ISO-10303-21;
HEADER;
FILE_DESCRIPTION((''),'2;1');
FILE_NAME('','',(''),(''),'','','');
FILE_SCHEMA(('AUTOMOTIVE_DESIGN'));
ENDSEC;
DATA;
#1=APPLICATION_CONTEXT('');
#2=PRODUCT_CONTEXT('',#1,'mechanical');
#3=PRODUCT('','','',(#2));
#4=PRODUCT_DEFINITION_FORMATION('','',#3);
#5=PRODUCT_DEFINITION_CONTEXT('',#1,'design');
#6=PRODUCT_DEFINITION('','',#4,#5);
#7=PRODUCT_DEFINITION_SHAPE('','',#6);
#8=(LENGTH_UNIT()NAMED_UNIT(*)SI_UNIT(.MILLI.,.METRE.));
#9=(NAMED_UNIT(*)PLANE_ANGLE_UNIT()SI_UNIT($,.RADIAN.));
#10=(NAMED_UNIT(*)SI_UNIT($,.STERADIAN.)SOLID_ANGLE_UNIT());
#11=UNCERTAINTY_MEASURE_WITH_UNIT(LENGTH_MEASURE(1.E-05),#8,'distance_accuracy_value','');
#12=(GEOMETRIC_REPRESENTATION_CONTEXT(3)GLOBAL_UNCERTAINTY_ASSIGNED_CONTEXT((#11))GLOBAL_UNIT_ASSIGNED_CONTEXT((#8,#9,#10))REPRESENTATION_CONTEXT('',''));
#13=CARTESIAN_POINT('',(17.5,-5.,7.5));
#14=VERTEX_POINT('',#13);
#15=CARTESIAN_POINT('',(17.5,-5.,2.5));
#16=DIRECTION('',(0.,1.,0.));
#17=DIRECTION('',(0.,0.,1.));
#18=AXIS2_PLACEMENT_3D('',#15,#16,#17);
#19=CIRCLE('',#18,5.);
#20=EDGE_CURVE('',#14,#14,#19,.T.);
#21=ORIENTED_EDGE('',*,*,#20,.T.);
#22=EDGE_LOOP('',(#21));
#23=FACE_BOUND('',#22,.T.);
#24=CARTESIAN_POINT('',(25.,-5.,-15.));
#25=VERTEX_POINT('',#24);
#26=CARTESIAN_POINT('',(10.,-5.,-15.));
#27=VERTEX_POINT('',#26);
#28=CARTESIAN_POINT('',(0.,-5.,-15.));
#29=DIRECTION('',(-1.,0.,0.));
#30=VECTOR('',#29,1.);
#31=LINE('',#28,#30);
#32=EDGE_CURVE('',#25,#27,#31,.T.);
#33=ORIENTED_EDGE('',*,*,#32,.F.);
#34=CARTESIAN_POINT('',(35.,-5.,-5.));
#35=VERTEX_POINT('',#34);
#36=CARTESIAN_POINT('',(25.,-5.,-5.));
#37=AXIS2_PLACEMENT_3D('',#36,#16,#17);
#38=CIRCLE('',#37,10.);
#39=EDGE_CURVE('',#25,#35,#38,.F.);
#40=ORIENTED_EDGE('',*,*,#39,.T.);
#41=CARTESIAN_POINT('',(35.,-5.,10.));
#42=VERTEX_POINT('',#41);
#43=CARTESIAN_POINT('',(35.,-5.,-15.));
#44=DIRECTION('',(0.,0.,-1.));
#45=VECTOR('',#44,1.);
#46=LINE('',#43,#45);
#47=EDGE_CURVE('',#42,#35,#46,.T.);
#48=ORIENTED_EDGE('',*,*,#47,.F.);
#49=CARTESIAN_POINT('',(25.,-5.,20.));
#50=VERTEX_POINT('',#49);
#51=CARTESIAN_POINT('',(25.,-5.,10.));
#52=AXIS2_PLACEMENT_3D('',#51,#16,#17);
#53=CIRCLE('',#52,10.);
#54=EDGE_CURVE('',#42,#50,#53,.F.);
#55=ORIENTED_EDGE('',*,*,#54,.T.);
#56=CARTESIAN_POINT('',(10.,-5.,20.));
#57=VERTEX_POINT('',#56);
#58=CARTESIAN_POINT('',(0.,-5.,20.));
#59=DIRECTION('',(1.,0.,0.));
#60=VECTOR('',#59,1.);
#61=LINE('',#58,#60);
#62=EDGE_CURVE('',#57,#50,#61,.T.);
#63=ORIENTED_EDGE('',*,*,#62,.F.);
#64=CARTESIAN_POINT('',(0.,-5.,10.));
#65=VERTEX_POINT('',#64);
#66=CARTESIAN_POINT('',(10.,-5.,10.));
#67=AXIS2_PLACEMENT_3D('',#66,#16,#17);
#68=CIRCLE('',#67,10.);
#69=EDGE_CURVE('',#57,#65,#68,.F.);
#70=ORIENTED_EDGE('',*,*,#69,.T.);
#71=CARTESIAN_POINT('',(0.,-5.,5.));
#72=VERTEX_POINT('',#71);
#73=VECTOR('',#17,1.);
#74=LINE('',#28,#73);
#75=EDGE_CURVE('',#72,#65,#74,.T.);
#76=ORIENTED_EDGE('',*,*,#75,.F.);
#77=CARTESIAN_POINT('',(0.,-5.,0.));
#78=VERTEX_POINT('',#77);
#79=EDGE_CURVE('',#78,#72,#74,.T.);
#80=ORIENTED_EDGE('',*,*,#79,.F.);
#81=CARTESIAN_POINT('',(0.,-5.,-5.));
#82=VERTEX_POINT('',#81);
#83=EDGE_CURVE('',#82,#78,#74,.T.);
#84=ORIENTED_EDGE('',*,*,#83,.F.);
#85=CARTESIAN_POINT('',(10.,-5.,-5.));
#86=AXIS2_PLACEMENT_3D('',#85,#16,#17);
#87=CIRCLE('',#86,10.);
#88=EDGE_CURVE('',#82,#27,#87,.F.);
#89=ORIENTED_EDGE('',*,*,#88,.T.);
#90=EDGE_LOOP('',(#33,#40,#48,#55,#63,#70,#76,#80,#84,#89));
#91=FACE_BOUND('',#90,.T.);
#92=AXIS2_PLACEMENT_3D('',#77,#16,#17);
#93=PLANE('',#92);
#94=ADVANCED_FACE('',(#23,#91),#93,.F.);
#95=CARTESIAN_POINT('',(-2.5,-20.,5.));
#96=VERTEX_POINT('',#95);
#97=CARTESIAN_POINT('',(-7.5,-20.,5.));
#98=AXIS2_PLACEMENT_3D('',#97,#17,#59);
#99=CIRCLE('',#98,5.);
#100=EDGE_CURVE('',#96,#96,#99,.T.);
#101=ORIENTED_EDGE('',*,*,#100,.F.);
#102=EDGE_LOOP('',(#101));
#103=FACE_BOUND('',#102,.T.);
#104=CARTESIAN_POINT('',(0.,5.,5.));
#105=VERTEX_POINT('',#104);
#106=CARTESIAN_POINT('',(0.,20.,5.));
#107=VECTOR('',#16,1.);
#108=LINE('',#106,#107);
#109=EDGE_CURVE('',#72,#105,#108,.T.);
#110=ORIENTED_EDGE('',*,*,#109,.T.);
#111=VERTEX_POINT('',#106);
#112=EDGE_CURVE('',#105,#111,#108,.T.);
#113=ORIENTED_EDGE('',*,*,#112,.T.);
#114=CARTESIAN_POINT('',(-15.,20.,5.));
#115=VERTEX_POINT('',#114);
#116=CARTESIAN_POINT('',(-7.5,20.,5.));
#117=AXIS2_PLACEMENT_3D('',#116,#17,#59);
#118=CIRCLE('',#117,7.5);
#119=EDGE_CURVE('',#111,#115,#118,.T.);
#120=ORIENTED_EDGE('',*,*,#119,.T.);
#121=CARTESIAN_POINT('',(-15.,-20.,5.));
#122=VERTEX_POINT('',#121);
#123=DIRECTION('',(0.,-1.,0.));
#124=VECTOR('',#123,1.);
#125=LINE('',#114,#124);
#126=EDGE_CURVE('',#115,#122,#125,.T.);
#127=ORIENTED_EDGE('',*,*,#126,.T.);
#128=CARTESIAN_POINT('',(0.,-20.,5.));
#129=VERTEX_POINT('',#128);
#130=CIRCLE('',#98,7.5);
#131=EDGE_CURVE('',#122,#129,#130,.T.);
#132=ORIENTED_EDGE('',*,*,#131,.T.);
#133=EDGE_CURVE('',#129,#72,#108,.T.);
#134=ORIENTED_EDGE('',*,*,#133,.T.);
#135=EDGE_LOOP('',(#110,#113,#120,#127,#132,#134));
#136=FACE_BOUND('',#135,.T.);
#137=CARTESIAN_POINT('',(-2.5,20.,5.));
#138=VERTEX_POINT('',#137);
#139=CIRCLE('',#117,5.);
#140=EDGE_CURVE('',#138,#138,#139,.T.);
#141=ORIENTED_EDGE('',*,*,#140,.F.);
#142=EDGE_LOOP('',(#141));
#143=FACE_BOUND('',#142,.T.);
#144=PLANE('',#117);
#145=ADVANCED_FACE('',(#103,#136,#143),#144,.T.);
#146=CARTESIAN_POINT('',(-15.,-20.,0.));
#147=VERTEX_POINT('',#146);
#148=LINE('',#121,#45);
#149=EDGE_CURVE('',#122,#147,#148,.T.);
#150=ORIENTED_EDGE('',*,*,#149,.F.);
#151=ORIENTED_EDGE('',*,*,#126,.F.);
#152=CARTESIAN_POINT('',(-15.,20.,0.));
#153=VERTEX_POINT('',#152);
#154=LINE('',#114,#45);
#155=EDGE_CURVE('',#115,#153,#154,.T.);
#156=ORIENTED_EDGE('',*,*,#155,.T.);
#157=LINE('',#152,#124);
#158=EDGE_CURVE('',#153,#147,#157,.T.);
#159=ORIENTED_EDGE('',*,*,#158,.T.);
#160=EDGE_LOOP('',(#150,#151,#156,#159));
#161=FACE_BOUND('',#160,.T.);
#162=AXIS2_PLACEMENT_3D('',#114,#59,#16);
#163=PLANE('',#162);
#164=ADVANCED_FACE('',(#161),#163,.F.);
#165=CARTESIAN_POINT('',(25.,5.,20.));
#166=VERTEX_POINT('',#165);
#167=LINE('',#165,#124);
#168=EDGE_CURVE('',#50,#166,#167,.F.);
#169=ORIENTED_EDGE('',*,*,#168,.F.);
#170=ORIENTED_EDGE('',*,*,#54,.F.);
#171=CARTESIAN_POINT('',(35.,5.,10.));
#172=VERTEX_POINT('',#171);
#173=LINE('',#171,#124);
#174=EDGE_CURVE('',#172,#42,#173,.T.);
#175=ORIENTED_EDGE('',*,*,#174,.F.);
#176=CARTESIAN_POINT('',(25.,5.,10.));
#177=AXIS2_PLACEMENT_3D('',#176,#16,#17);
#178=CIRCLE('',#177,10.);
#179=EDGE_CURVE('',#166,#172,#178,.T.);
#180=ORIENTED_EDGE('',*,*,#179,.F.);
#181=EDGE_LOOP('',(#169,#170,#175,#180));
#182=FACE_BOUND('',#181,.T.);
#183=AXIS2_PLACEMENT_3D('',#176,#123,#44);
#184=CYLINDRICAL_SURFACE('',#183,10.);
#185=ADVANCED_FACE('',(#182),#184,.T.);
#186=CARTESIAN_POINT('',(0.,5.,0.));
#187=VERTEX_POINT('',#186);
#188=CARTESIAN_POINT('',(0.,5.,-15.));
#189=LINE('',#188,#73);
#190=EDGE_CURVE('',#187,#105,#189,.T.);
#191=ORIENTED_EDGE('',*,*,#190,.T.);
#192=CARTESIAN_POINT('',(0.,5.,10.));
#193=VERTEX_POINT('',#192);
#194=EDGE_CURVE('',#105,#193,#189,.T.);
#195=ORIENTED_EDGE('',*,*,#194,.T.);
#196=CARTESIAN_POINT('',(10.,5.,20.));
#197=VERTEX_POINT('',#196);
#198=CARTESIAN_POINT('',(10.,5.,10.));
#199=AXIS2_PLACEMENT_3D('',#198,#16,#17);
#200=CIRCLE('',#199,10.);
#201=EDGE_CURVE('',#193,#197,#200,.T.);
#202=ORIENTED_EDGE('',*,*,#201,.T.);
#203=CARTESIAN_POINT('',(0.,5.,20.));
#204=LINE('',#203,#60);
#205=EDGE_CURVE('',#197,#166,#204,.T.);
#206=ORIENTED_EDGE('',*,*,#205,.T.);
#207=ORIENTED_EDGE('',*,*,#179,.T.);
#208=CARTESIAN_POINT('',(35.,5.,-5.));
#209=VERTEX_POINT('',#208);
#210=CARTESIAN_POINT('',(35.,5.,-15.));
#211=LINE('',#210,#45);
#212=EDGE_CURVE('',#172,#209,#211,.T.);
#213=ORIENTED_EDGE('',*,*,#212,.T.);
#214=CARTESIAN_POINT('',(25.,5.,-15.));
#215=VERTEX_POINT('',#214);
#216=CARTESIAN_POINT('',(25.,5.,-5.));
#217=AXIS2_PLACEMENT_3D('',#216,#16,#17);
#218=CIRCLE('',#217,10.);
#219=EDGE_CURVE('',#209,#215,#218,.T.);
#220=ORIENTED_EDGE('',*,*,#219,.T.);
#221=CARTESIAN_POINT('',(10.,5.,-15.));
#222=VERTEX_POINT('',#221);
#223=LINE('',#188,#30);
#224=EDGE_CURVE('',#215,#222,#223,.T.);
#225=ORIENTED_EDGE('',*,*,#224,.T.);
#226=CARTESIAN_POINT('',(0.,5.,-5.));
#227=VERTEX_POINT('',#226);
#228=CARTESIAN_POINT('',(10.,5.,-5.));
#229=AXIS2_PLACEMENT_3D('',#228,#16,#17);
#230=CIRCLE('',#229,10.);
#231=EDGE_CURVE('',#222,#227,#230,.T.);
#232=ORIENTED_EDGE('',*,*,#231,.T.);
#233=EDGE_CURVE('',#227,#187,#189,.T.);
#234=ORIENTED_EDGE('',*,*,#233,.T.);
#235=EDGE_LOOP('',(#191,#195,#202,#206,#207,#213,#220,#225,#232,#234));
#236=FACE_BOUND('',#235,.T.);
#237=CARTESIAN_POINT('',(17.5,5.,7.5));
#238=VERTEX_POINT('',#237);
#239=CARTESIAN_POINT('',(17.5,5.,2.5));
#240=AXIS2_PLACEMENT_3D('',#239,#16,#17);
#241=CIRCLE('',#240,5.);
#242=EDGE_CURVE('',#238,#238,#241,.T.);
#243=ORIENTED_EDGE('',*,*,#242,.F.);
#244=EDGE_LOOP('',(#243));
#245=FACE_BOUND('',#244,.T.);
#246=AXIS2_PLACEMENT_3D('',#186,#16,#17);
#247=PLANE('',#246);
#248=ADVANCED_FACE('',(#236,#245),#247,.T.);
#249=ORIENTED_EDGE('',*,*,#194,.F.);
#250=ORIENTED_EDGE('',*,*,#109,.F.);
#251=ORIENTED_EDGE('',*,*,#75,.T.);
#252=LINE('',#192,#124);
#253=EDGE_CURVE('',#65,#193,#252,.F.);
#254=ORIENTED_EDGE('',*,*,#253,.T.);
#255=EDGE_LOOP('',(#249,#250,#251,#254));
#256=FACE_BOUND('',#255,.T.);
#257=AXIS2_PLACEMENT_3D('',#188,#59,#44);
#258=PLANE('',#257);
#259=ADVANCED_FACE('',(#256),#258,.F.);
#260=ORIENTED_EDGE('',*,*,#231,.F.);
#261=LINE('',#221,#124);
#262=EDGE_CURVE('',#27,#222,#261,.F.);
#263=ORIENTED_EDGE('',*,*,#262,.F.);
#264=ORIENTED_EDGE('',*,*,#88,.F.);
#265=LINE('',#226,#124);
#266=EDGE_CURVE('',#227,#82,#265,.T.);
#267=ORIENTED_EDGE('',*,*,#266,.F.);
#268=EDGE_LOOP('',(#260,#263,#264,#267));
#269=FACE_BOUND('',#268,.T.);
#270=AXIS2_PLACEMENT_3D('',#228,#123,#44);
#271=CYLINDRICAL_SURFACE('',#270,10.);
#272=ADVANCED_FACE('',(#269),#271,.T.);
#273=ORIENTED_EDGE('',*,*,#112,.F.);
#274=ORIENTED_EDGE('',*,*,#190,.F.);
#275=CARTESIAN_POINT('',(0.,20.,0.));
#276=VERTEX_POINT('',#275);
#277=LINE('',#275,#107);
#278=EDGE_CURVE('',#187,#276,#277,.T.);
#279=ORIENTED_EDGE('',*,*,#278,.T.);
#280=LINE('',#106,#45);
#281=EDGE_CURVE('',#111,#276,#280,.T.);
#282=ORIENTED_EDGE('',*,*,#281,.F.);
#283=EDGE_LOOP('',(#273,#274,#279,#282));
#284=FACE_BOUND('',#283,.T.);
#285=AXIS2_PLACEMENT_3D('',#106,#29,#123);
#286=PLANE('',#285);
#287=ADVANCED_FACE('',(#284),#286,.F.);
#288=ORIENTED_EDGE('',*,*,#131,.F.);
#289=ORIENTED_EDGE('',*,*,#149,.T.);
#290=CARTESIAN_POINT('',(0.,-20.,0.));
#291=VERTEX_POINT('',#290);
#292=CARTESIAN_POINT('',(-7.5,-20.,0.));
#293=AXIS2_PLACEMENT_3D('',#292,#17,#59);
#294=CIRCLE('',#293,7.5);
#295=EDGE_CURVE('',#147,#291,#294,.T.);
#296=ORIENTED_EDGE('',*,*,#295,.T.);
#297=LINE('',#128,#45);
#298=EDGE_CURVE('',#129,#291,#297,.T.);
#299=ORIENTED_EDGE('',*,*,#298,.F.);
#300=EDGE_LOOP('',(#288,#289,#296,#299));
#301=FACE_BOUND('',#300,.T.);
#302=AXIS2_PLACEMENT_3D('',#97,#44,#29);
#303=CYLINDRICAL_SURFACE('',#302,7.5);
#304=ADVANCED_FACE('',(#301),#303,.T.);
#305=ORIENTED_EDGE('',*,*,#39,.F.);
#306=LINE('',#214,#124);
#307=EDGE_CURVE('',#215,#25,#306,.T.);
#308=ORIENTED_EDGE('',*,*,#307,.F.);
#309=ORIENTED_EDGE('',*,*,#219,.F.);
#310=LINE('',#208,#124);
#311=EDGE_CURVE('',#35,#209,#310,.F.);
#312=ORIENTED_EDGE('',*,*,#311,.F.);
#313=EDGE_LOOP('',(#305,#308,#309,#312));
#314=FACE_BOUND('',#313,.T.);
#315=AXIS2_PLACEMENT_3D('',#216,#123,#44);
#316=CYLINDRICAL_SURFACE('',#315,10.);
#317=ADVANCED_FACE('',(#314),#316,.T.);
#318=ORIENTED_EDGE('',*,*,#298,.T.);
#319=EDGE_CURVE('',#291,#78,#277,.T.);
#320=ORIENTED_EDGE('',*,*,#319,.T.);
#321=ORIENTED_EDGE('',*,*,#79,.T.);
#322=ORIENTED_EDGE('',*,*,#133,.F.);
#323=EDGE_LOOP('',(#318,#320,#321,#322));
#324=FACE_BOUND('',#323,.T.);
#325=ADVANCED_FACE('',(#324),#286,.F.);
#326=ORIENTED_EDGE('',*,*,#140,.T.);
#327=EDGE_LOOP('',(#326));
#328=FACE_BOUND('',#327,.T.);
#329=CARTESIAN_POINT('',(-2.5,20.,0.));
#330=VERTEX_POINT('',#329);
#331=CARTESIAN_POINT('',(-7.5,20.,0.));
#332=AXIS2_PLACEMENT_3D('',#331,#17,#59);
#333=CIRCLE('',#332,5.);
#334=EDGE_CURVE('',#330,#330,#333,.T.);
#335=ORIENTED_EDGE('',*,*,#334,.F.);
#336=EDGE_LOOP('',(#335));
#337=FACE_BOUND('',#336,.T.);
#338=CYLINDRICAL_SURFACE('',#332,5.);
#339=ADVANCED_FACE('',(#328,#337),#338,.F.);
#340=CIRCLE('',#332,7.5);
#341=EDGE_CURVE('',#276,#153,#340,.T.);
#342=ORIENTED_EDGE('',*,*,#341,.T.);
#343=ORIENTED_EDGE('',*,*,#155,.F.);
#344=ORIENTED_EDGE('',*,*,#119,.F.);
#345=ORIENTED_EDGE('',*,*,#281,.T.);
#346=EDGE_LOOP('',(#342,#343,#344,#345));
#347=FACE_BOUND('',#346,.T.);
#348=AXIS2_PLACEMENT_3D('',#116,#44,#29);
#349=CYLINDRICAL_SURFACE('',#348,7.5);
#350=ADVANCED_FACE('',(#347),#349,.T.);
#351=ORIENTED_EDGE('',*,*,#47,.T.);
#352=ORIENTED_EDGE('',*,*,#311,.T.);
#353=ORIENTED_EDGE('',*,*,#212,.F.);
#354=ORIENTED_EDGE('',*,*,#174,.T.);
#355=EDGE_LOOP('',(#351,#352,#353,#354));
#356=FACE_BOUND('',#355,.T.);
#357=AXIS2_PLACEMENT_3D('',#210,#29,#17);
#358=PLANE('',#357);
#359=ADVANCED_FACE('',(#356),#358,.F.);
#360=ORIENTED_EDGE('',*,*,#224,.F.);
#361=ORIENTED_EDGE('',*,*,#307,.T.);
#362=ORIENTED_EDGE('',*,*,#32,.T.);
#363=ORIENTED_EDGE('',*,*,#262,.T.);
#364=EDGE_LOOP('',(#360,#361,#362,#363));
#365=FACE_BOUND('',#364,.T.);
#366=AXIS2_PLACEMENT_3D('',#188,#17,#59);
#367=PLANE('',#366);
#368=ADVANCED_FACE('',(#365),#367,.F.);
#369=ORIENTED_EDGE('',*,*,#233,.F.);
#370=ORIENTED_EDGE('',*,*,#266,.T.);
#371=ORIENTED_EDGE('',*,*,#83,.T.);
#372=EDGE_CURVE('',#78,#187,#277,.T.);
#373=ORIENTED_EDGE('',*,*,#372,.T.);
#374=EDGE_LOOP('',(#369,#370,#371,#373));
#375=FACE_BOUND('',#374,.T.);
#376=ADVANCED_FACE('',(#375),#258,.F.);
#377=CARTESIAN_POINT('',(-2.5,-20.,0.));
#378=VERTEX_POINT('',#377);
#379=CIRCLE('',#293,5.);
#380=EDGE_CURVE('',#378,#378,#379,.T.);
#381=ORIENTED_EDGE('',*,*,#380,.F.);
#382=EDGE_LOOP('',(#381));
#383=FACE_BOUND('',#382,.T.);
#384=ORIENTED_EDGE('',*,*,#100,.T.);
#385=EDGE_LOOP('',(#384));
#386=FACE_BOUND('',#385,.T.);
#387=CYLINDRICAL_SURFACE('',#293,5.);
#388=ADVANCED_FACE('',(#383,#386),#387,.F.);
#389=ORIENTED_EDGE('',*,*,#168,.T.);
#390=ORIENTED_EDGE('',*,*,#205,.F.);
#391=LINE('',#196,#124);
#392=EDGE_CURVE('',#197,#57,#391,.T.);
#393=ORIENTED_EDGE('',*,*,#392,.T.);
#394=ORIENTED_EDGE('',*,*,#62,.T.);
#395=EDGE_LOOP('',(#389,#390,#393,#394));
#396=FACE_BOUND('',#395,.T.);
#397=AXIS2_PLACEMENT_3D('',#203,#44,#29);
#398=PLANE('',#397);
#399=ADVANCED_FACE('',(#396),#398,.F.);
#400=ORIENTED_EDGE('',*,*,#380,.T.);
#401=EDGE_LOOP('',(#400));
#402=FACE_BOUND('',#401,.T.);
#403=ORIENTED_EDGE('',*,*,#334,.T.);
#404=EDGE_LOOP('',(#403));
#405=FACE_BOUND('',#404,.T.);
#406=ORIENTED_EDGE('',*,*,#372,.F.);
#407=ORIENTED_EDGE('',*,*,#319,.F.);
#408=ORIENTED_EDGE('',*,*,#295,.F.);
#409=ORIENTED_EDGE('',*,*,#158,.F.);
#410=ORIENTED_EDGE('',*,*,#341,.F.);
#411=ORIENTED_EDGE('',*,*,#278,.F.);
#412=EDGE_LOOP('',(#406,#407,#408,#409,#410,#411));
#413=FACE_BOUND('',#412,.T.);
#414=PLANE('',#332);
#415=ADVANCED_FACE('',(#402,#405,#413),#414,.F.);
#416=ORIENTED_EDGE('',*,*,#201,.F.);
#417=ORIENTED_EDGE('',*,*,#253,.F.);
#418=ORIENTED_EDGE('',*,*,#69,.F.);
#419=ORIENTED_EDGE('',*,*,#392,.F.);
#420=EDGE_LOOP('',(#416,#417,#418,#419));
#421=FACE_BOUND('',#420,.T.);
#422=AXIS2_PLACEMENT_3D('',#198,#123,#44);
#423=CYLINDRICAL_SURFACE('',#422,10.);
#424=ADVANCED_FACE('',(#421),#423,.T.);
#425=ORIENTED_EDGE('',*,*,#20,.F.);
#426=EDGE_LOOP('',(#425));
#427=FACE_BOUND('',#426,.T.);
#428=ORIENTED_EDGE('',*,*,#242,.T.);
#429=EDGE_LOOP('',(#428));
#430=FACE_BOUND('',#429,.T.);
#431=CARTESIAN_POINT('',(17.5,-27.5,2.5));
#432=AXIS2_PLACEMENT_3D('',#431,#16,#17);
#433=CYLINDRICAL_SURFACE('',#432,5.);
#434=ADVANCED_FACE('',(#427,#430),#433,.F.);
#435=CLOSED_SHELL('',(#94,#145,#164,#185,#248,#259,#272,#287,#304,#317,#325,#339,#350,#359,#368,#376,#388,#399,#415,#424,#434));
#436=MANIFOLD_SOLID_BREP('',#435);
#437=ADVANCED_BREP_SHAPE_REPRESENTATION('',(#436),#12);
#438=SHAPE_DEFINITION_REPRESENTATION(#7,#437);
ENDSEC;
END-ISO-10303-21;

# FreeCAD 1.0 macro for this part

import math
import FreeCAD as App
import Part
import Sketcher


def edges_at(feature, points):
    """Names of the edges that pass closest to the given points."""
    edges = feature.Shape.Edges
    near = lambda p: min(range(len(edges)), key=lambda i: edges[i].distToShape(Part.Vertex(*p))[0])
    return sorted({f"Edge{near(p) + 1}" for p in points})


def add_polygon(sketch, points):
    """Adds a closed chain of lines whose ends are joined by coincident constraints."""
    first, n = sketch.GeometryCount, len(points)
    for a, b in zip(points, points[1:] + points[:1]):
        sketch.addGeometry(Part.LineSegment(App.Vector(*a, 0), App.Vector(*b, 0)), False)
    for i in range(n):
        sketch.addConstraint(Sketcher.Constraint("Coincident", first + i, 2, first + (i + 1) % n, 1))

doc = App.newDocument("Part")
params = doc.addObject("Spreadsheet::Sheet", "Params")
for row, (alias, value) in enumerate([
    ("sketch1_radius", "7.5 mm"),
    ("sketch1_height", "40 mm"),
    ("pad1_length", "5 mm"),
    ("sketch2_diameter", "10 mm"),
    ("sketch3_width", "35 mm"),
    ("pad2_length", "10 mm"),
    ("fillet_radius", "10 mm"),
    ("sketch4_diameter", "10 mm"),
], start=1):
    params.set(f"A{row}", alias)
    params.set(f"B{row}", "=" + value)
    params.setAlias(f"B{row}", alias)

body = doc.addObject("PartDesign::Body", "Body")

# Sketch on XY plane
sketch1 = body.newObject("Sketcher::SketchObject", "Sketch")
sketch1.AttachmentSupport = (doc.getObject("XY_Plane"), [""])
sketch1.MapMode = "FlatFace"
sketch1.addGeometry(Part.LineSegment(App.Vector(0, -20, 0), App.Vector(0, 20, 0)), False)
sketch1.addGeometry(Part.ArcOfCircle(Part.Circle(App.Vector(-8, 20, 0), App.Vector(0, 0, 1), 8), math.radians(0), math.radians(180)), False)
sketch1.addGeometry(Part.LineSegment(App.Vector(-15, 20, 0), App.Vector(-15, -20, 0)), False)
sketch1.addGeometry(Part.ArcOfCircle(Part.Circle(App.Vector(-8, -20, 0), App.Vector(0, 0, 1), 8), math.radians(180), math.radians(360)), False)
sketch1.addConstraint(Sketcher.Constraint("Tangent", 0, 2, 1, 1))
sketch1.addConstraint(Sketcher.Constraint("Tangent", 1, 2, 2, 1))
sketch1.addConstraint(Sketcher.Constraint("Tangent", 2, 2, 3, 1))
sketch1.addConstraint(Sketcher.Constraint("Tangent", 3, 2, 0, 1))
sketch1.addConstraint(Sketcher.Constraint("Vertical", 0))
sketch1.addConstraint(Sketcher.Constraint("Vertical", 2))
sketch1.addConstraint(Sketcher.Constraint("Symmetric", 0, 2, 3, 2, -1, 1))
sketch1.addConstraint(Sketcher.Constraint("Radius", 1, 7.5))
sketch1.addConstraint(Sketcher.Constraint("DistanceY", 0, 1, 0, 2, 40.0))
sketch1.setExpression("Constraints[7]", "Params.sketch1_radius")
sketch1.setExpression("Constraints[8]", "Params.sketch1_height")
pad1 = body.newObject("PartDesign::Pad", "Pad")
pad1.Profile = sketch1
pad1.setExpression("Length", "Params.pad1_length")

# Sketch on XY plane
sketch2 = body.newObject("Sketcher::SketchObject", "Sketch001")
sketch2.AttachmentSupport = (doc.getObject("XY_Plane"), [""])
sketch2.MapMode = "FlatFace"
sketch2.AttachmentOffset = App.Placement(App.Vector(0, 0, 5), App.Rotation())
sketch2.addGeometry(Part.Circle(App.Vector(-8, 20, 0), App.Vector(0, 0, 1), 5), False)
sketch2.addGeometry(Part.Circle(App.Vector(-8, -20, 0), App.Vector(0, 0, 1), 5), False)
sketch2.addConstraint(Sketcher.Constraint("Equal", 0, 1))
sketch2.addConstraint(Sketcher.Constraint("Symmetric", 0, 3, 1, 3, -1))
sketch2.addConstraint(Sketcher.Constraint("Diameter", 0, 10.0))
sketch2.addConstraint(Sketcher.Constraint("DistanceY", -1, 1, 0, 3, 20.0))
sketch2.addConstraint(Sketcher.Constraint("DistanceX", 0, 3, -1, 1, 7.5))
sketch2.setExpression("Constraints[2]", "Params.sketch2_diameter")
pocket1 = body.newObject("PartDesign::Pocket", "Pocket")
pocket1.Profile = sketch2
pocket1.Type = "ThroughAll"

# Sketch on XZ plane
sketch3 = body.newObject("Sketcher::SketchObject", "Sketch002")
sketch3.AttachmentSupport = (doc.getObject("XZ_Plane"), [""])
sketch3.MapMode = "FlatFace"
add_polygon(sketch3, [(0, -15), (0, 20), (35, 20), (35, -15)])  # lines 0-3
sketch3.addConstraint(Sketcher.Constraint("Vertical", 0))
sketch3.addConstraint(Sketcher.Constraint("Horizontal", 1))
sketch3.addConstraint(Sketcher.Constraint("Vertical", 2))
sketch3.addConstraint(Sketcher.Constraint("Horizontal", 3))
sketch3.addConstraint(Sketcher.Constraint("PointOnObject", 0, 2, -2))
sketch3.addConstraint(Sketcher.Constraint("Equal", 3, 0))
sketch3.addConstraint(Sketcher.Constraint("DistanceX", 1, 1, 1, 2, 35.0))
sketch3.addConstraint(Sketcher.Constraint("DistanceY", -1, 1, 0, 2, 20.0))
sketch3.setExpression("Constraints[10]", "Params.sketch3_width")
pad2 = body.newObject("PartDesign::Pad", "Pad001")
pad2.Profile = sketch3
pad2.setExpression("Length", "Params.pad2_length")
pad2.Midplane = True
doc.recompute()

fillet = body.newObject("PartDesign::Fillet", "Fillet")
fillet.Base = (pad2, edges_at(pad2, [
    (0, 0, -15),
    (0, 0, 20),
    (35, 0, 20),
    (35, 0, -15),
]))
fillet.setExpression("Radius", "Params.fillet_radius")

# Sketch on XZ plane
sketch4 = body.newObject("Sketcher::SketchObject", "Sketch003")
sketch4.AttachmentSupport = (doc.getObject("XZ_Plane"), [""])
sketch4.MapMode = "FlatFace"
sketch4.AttachmentOffset = App.Placement(App.Vector(0, 0, -5), App.Rotation())
sketch4.addGeometry(Part.Circle(App.Vector(18, 2, 0), App.Vector(0, 0, 1), 5), False)
sketch4.addConstraint(Sketcher.Constraint("Diameter", 0, 10.0))
sketch4.addConstraint(Sketcher.Constraint("DistanceX", -1, 1, 0, 3, 17.5))
sketch4.addConstraint(Sketcher.Constraint("DistanceY", -1, 1, 0, 3, 2.5))
sketch4.setExpression("Constraints[0]", "Params.sketch4_diameter")
pocket2 = body.newObject("PartDesign::Pocket", "Pocket001")
pocket2.Profile = sketch4
pocket2.Type = "ThroughAll"
pocket2.Reversed = True

doc.recompute()
